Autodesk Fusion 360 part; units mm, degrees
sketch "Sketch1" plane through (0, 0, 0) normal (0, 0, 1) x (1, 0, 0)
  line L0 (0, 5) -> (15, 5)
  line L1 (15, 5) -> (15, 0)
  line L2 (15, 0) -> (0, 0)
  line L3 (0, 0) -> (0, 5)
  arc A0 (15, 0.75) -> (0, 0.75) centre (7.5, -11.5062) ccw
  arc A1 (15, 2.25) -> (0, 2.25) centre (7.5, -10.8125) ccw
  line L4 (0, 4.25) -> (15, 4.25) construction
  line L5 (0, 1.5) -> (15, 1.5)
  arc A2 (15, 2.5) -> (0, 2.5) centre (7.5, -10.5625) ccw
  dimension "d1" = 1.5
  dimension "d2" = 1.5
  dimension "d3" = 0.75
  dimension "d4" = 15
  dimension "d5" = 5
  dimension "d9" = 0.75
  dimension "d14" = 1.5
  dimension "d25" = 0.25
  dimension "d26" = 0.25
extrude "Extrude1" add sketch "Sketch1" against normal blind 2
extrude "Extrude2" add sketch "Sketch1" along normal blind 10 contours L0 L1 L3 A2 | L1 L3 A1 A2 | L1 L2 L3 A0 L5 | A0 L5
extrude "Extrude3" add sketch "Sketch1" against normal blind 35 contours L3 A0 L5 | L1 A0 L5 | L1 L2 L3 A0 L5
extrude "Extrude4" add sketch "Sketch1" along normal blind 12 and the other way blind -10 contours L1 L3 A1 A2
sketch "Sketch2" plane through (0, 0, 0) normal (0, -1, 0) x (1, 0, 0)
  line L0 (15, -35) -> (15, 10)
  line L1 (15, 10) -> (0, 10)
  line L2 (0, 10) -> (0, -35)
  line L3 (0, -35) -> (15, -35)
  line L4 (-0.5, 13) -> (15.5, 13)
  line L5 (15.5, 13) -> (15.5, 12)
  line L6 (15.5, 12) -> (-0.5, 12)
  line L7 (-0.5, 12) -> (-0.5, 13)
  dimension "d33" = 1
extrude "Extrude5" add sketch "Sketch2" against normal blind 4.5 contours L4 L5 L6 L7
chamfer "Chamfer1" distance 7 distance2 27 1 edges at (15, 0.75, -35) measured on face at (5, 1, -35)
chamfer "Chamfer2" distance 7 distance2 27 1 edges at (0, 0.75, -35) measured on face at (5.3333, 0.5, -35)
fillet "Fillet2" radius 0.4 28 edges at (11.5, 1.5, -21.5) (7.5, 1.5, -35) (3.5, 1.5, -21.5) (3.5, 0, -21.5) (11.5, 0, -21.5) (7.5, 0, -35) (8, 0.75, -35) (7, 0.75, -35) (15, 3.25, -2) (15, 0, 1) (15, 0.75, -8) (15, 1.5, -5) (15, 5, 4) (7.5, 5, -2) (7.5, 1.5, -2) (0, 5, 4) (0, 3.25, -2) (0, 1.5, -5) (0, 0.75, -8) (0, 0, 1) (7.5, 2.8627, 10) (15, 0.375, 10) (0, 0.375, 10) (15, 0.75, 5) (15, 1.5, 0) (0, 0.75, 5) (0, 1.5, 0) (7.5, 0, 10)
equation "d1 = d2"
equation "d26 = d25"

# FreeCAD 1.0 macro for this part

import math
import FreeCAD as App
import Part
import Sketcher


def edges_at(feature, points):
    """Names of the edges that pass closest to the given points."""
    edges = feature.Shape.Edges
    near = lambda p: min(range(len(edges)), key=lambda i: edges[i].distToShape(Part.Vertex(*p))[0])
    return sorted({f"Edge{near(p) + 1}" for p in points})

doc = App.newDocument("Part")
body = doc.addObject("PartDesign::Body", "Body")

# Sketch on XY plane
sketch1 = doc.addObject("Sketcher::SketchObject", "Sketch")
body.addObject(sketch1)
sketch1.AttachmentSupport = (doc.XY_Plane, [""])
sketch1.MapMode = "FlatFace"
sketch1.addGeometry(Part.LineSegment(App.Vector(15, 5, 0), App.Vector(0, 5, 0)), False)
sketch1.addGeometry(Part.LineSegment(App.Vector(0, 5, 0), App.Vector(0, 0, 0)), False)
sketch1.addGeometry(Part.LineSegment(App.Vector(0, 0, 0), App.Vector(15, 0, 0)), False)
sketch1.addGeometry(Part.LineSegment(App.Vector(15, 0, 0), App.Vector(15, 5, 0)), False)
sketch1.addConstraint(Sketcher.Constraint("Coincident", 0, 2, 1, 1))
sketch1.addConstraint(Sketcher.Constraint("Coincident", 1, 2, 2, 1))
sketch1.addConstraint(Sketcher.Constraint("Coincident", 2, 2, 3, 1))
sketch1.addConstraint(Sketcher.Constraint("Coincident", 3, 2, 0, 1))
sketch1.addConstraint(Sketcher.Constraint("Horizontal", 0))
sketch1.addConstraint(Sketcher.Constraint("Vertical", 1))
sketch1.addConstraint(Sketcher.Constraint("Horizontal", 2))
sketch1.addConstraint(Sketcher.Constraint("Vertical", 3))
sketch1.addConstraint(Sketcher.Constraint("Coincident", 1, 2, -1, 1))
sketch1.addConstraint(Sketcher.Constraint("DistanceX", 0, 2, 0, 1, 15.0))
sketch1.addConstraint(Sketcher.Constraint("DistanceY", 1, 2, 1, 1, 5.0))
pad1 = doc.addObject("PartDesign::Pad", "Pad")
body.addObject(pad1)
pad1.Profile = sketch1
pad1.Length = 2
pad1.Reversed = True

# Sketch on XY plane
sketch2 = doc.addObject("Sketcher::SketchObject", "Sketch001")
body.addObject(sketch2)
sketch2.AttachmentSupport = (doc.XY_Plane, [""])
sketch2.MapMode = "FlatFace"
sketch2.addGeometry(Part.LineSegment(App.Vector(15, 5, 0), App.Vector(0, 5, 0)), False)
sketch2.addGeometry(Part.LineSegment(App.Vector(0, 5, 0), App.Vector(0, 2.2, 0)), False)
sketch2.addGeometry(Part.ArcOfCircle(Part.Circle(App.Vector(7.5, -10.8, 0), App.Vector(0, 0, 1), 15.1), math.radians(60), math.radians(120)), False)
sketch2.addGeometry(Part.LineSegment(App.Vector(15, 2.2, 0), App.Vector(15, 5, 0)), False)
sketch2.addGeometry(Part.LineSegment(App.Vector(0, 0.8, 0), App.Vector(0, 0, 0)), False)
sketch2.addGeometry(Part.LineSegment(App.Vector(0, 0, 0), App.Vector(15, 0, 0)), False)
sketch2.addGeometry(Part.LineSegment(App.Vector(15, 0, 0), App.Vector(15, 0.8, 0)), False)
sketch2.addGeometry(Part.ArcOfCircle(Part.Circle(App.Vector(7.5, -11.5, 0), App.Vector(0, 0, 1), 14.4), math.radians(59), math.radians(121)), False)
sketch2.addConstraint(Sketcher.Constraint("Coincident", 0, 2, 1, 1))
sketch2.addConstraint(Sketcher.Constraint("Coincident", 1, 2, 2, 2))
sketch2.addConstraint(Sketcher.Constraint("Coincident", 2, 1, 3, 1))
sketch2.addConstraint(Sketcher.Constraint("Coincident", 3, 2, 0, 1))
sketch2.addConstraint(Sketcher.Constraint("Coincident", 4, 2, 5, 1))
sketch2.addConstraint(Sketcher.Constraint("Coincident", 5, 2, 6, 1))
sketch2.addConstraint(Sketcher.Constraint("Coincident", 6, 2, 7, 1))
sketch2.addConstraint(Sketcher.Constraint("Coincident", 7, 2, 4, 1))
sketch2.addConstraint(Sketcher.Constraint("Horizontal", 0))
sketch2.addConstraint(Sketcher.Constraint("Vertical", 1))
sketch2.addConstraint(Sketcher.Constraint("Vertical", 3))
sketch2.addConstraint(Sketcher.Constraint("Vertical", 4))
sketch2.addConstraint(Sketcher.Constraint("Horizontal", 5))
sketch2.addConstraint(Sketcher.Constraint("Vertical", 6))
sketch2.addConstraint(Sketcher.Constraint("Coincident", 4, 2, -1, 1))
sketch2.addConstraint(Sketcher.Constraint("PointOnObject", 0, 2, -2))
sketch2.addConstraint(Sketcher.Constraint("Horizontal", 1, 2, 2, 1))
sketch2.addConstraint(Sketcher.Constraint("Horizontal", 6, 2, 7, 2))
sketch2.addConstraint(Sketcher.Constraint("Vertical", 2, 3, 7, 3))
sketch2.addConstraint(Sketcher.Constraint("DistanceX", 0, 2, 0, 1, 15.0))
sketch2.addConstraint(Sketcher.Constraint("DistanceY", -1, 1, 0, 2, 5.0))
sketch2.addConstraint(Sketcher.Constraint("DistanceY", 4, 2, 4, 1, 0.75))
sketch2.addConstraint(Sketcher.Constraint("DistanceY", 6, 2, 2, 1, 1.5))
sketch2.addConstraint(Sketcher.Constraint("Radius", 2, 15.0625))
sketch2.addConstraint(Sketcher.Constraint("Radius", 7, 14.3689))
pad2 = doc.addObject("PartDesign::Pad", "Pad001")
body.addObject(pad2)
pad2.Profile = sketch2
pad2.Length = 10

# Sketch on XY plane
sketch3 = doc.addObject("Sketcher::SketchObject", "Sketch002")
body.addObject(sketch3)
sketch3.AttachmentSupport = (doc.XY_Plane, [""])
sketch3.MapMode = "FlatFace"
sketch3.addGeometry(Part.LineSegment(App.Vector(0, 1.5, 0), App.Vector(0, 0, 0)), False)
sketch3.addGeometry(Part.LineSegment(App.Vector(0, 0, 0), App.Vector(15, 0, 0)), False)
sketch3.addGeometry(Part.LineSegment(App.Vector(15, 0, 0), App.Vector(15, 1.5, 0)), False)
sketch3.addGeometry(Part.LineSegment(App.Vector(15, 1.5, 0), App.Vector(0, 1.5, 0)), False)
sketch3.addConstraint(Sketcher.Constraint("Coincident", 0, 2, 1, 1))
sketch3.addConstraint(Sketcher.Constraint("Coincident", 1, 2, 2, 1))
sketch3.addConstraint(Sketcher.Constraint("Coincident", 2, 2, 3, 1))
sketch3.addConstraint(Sketcher.Constraint("Coincident", 3, 2, 0, 1))
sketch3.addConstraint(Sketcher.Constraint("Vertical", 0))
sketch3.addConstraint(Sketcher.Constraint("Horizontal", 1))
sketch3.addConstraint(Sketcher.Constraint("Vertical", 2))
sketch3.addConstraint(Sketcher.Constraint("Horizontal", 3))
sketch3.addConstraint(Sketcher.Constraint("Coincident", 0, 2, -1, 1))
sketch3.addConstraint(Sketcher.Constraint("DistanceX", 1, 1, 1, 2, 15.0))
sketch3.addConstraint(Sketcher.Constraint("DistanceY", 0, 2, 0, 1, 1.5))
pad3 = doc.addObject("PartDesign::Pad", "Pad002")
body.addObject(pad3)
pad3.Profile = sketch3
pad3.Length = 35
pad3.Reversed = True

# Sketch on XY plane
sketch4 = doc.addObject("Sketcher::SketchObject", "Sketch003")
body.addObject(sketch4)
sketch4.AttachmentSupport = (doc.XY_Plane, [""])
sketch4.MapMode = "FlatFace"
sketch4.addGeometry(Part.ArcOfCircle(Part.Circle(App.Vector(7.5, -10.56, 0), App.Vector(0, 0, 1), 15.06), math.radians(60), math.radians(120)), False)
sketch4.addGeometry(Part.LineSegment(App.Vector(0, 2.5, 0), App.Vector(0, 2.25, 0)), False)
sketch4.addGeometry(Part.ArcOfCircle(Part.Circle(App.Vector(7.5, -10.81, 0), App.Vector(0, 0, 1), 15.06), math.radians(60), math.radians(120)), False)
sketch4.addGeometry(Part.LineSegment(App.Vector(15, 2.25, 0), App.Vector(15, 2.5, 0)), False)
sketch4.addConstraint(Sketcher.Constraint("Coincident", 0, 2, 1, 1))
sketch4.addConstraint(Sketcher.Constraint("Coincident", 1, 2, 2, 2))
sketch4.addConstraint(Sketcher.Constraint("Coincident", 2, 1, 3, 1))
sketch4.addConstraint(Sketcher.Constraint("Coincident", 3, 2, 0, 1))
sketch4.addConstraint(Sketcher.Constraint("Vertical", 1))
sketch4.addConstraint(Sketcher.Constraint("Vertical", 3))
sketch4.addConstraint(Sketcher.Constraint("Equal", 0, 2))
sketch4.addConstraint(Sketcher.Constraint("PointOnObject", 0, 2, -2))
sketch4.addConstraint(Sketcher.Constraint("Horizontal", 1, 2, 2, 1))
sketch4.addConstraint(Sketcher.Constraint("Horizontal", 0, 2, 3, 2))
sketch4.addConstraint(Sketcher.Constraint("DistanceX", -1, 1, 2, 1, 15.0))
sketch4.addConstraint(Sketcher.Constraint("DistanceY", 1, 2, 1, 1, 0.25))
sketch4.addConstraint(Sketcher.Constraint("DistanceY", -1, 1, 0, 2, 2.5))
sketch4.addConstraint(Sketcher.Constraint("Radius", 0, 15.0625))
pad4 = doc.addObject("PartDesign::Pad", "Pad003")
body.addObject(pad4)
pad4.Profile = sketch4
pad4.Length = 12

# Sketch on XZ plane
sketch5 = doc.addObject("Sketcher::SketchObject", "Sketch004")
body.addObject(sketch5)
sketch5.AttachmentSupport = (doc.XZ_Plane, [""])
sketch5.MapMode = "FlatFace"
sketch5.addGeometry(Part.LineSegment(App.Vector(15.5, 13, 0), App.Vector(-0.5, 13, 0)), False)
sketch5.addGeometry(Part.LineSegment(App.Vector(-0.5, 13, 0), App.Vector(-0.5, 12, 0)), False)
sketch5.addGeometry(Part.LineSegment(App.Vector(-0.5, 12, 0), App.Vector(15.5, 12, 0)), False)
sketch5.addGeometry(Part.LineSegment(App.Vector(15.5, 12, 0), App.Vector(15.5, 13, 0)), False)
sketch5.addConstraint(Sketcher.Constraint("Coincident", 0, 2, 1, 1))
sketch5.addConstraint(Sketcher.Constraint("Coincident", 1, 2, 2, 1))
sketch5.addConstraint(Sketcher.Constraint("Coincident", 2, 2, 3, 1))
sketch5.addConstraint(Sketcher.Constraint("Coincident", 3, 2, 0, 1))
sketch5.addConstraint(Sketcher.Constraint("Horizontal", 0))
sketch5.addConstraint(Sketcher.Constraint("Vertical", 1))
sketch5.addConstraint(Sketcher.Constraint("Horizontal", 2))
sketch5.addConstraint(Sketcher.Constraint("Vertical", 3))
sketch5.addConstraint(Sketcher.Constraint("DistanceY", 1, 2, 1, 1, 1.0))
sketch5.addConstraint(Sketcher.Constraint("DistanceX", 0, 2, 0, 1, 16.0))
sketch5.addConstraint(Sketcher.Constraint("DistanceY", -1, 1, 0, 2, 13.0))
sketch5.addConstraint(Sketcher.Constraint("DistanceX", 0, 2, -1, 1, 0.5))
pad5 = doc.addObject("PartDesign::Pad", "Pad004")
body.addObject(pad5)
pad5.Profile = sketch5
pad5.Length = 4.5
pad5.Reversed = True
doc.recompute()

chamfer = doc.addObject("PartDesign::Chamfer", "Chamfer")
body.addObject(chamfer)
chamfer.Base = (pad5, edges_at(pad5, [(15, 0.75, -35)]))
chamfer.ChamferType = "Two distances"
chamfer.Size = 7
chamfer.Size2 = 27
chamfer.FlipDirection = True
doc.recompute()

chamfer2 = doc.addObject("PartDesign::Chamfer", "Chamfer001")
body.addObject(chamfer2)
chamfer2.Base = (chamfer, edges_at(chamfer, [(0, 0.75, -35)]))
chamfer2.ChamferType = "Two distances"
chamfer2.Size = 7
chamfer2.Size2 = 27
doc.recompute()

fillet = doc.addObject("PartDesign::Fillet", "Fillet")
body.addObject(fillet)
fillet.Base = (chamfer2, edges_at(chamfer2, [
    (11.5, 1.5, -21.5),
    (7.5, 1.5, -35),
    (3.5, 1.5, -21.5),
    (3.5, 0, -21.5),
    (11.5, 0, -21.5),
    (7.5, 0, -35),
    (8, 0.75, -35),
    (7, 0.75, -35),
    (15, 3.25, -2),
    (15, 0, 1),
    (15, 0.75, -8),
    (15, 1.5, -5),
    (15, 5, 4),
    (7.5, 5, -2),
    (7.5, 1.5, -2),
    (0, 5, 4),
    (0, 3.25, -2),
    (0, 1.5, -5),
    (0, 0.75, -8),
    (0, 0, 1),
    (7.5, 2.863, 10),
    (15, 0.375, 10),
    (0, 0.375, 10),
    (15, 0.75, 5),
    (15, 1.5, 0),
    (0, 0.75, 5),
    (0, 1.5, 0),
    (7.5, 0, 10),
]))
fillet.Radius = 0.4

doc.recompute()
